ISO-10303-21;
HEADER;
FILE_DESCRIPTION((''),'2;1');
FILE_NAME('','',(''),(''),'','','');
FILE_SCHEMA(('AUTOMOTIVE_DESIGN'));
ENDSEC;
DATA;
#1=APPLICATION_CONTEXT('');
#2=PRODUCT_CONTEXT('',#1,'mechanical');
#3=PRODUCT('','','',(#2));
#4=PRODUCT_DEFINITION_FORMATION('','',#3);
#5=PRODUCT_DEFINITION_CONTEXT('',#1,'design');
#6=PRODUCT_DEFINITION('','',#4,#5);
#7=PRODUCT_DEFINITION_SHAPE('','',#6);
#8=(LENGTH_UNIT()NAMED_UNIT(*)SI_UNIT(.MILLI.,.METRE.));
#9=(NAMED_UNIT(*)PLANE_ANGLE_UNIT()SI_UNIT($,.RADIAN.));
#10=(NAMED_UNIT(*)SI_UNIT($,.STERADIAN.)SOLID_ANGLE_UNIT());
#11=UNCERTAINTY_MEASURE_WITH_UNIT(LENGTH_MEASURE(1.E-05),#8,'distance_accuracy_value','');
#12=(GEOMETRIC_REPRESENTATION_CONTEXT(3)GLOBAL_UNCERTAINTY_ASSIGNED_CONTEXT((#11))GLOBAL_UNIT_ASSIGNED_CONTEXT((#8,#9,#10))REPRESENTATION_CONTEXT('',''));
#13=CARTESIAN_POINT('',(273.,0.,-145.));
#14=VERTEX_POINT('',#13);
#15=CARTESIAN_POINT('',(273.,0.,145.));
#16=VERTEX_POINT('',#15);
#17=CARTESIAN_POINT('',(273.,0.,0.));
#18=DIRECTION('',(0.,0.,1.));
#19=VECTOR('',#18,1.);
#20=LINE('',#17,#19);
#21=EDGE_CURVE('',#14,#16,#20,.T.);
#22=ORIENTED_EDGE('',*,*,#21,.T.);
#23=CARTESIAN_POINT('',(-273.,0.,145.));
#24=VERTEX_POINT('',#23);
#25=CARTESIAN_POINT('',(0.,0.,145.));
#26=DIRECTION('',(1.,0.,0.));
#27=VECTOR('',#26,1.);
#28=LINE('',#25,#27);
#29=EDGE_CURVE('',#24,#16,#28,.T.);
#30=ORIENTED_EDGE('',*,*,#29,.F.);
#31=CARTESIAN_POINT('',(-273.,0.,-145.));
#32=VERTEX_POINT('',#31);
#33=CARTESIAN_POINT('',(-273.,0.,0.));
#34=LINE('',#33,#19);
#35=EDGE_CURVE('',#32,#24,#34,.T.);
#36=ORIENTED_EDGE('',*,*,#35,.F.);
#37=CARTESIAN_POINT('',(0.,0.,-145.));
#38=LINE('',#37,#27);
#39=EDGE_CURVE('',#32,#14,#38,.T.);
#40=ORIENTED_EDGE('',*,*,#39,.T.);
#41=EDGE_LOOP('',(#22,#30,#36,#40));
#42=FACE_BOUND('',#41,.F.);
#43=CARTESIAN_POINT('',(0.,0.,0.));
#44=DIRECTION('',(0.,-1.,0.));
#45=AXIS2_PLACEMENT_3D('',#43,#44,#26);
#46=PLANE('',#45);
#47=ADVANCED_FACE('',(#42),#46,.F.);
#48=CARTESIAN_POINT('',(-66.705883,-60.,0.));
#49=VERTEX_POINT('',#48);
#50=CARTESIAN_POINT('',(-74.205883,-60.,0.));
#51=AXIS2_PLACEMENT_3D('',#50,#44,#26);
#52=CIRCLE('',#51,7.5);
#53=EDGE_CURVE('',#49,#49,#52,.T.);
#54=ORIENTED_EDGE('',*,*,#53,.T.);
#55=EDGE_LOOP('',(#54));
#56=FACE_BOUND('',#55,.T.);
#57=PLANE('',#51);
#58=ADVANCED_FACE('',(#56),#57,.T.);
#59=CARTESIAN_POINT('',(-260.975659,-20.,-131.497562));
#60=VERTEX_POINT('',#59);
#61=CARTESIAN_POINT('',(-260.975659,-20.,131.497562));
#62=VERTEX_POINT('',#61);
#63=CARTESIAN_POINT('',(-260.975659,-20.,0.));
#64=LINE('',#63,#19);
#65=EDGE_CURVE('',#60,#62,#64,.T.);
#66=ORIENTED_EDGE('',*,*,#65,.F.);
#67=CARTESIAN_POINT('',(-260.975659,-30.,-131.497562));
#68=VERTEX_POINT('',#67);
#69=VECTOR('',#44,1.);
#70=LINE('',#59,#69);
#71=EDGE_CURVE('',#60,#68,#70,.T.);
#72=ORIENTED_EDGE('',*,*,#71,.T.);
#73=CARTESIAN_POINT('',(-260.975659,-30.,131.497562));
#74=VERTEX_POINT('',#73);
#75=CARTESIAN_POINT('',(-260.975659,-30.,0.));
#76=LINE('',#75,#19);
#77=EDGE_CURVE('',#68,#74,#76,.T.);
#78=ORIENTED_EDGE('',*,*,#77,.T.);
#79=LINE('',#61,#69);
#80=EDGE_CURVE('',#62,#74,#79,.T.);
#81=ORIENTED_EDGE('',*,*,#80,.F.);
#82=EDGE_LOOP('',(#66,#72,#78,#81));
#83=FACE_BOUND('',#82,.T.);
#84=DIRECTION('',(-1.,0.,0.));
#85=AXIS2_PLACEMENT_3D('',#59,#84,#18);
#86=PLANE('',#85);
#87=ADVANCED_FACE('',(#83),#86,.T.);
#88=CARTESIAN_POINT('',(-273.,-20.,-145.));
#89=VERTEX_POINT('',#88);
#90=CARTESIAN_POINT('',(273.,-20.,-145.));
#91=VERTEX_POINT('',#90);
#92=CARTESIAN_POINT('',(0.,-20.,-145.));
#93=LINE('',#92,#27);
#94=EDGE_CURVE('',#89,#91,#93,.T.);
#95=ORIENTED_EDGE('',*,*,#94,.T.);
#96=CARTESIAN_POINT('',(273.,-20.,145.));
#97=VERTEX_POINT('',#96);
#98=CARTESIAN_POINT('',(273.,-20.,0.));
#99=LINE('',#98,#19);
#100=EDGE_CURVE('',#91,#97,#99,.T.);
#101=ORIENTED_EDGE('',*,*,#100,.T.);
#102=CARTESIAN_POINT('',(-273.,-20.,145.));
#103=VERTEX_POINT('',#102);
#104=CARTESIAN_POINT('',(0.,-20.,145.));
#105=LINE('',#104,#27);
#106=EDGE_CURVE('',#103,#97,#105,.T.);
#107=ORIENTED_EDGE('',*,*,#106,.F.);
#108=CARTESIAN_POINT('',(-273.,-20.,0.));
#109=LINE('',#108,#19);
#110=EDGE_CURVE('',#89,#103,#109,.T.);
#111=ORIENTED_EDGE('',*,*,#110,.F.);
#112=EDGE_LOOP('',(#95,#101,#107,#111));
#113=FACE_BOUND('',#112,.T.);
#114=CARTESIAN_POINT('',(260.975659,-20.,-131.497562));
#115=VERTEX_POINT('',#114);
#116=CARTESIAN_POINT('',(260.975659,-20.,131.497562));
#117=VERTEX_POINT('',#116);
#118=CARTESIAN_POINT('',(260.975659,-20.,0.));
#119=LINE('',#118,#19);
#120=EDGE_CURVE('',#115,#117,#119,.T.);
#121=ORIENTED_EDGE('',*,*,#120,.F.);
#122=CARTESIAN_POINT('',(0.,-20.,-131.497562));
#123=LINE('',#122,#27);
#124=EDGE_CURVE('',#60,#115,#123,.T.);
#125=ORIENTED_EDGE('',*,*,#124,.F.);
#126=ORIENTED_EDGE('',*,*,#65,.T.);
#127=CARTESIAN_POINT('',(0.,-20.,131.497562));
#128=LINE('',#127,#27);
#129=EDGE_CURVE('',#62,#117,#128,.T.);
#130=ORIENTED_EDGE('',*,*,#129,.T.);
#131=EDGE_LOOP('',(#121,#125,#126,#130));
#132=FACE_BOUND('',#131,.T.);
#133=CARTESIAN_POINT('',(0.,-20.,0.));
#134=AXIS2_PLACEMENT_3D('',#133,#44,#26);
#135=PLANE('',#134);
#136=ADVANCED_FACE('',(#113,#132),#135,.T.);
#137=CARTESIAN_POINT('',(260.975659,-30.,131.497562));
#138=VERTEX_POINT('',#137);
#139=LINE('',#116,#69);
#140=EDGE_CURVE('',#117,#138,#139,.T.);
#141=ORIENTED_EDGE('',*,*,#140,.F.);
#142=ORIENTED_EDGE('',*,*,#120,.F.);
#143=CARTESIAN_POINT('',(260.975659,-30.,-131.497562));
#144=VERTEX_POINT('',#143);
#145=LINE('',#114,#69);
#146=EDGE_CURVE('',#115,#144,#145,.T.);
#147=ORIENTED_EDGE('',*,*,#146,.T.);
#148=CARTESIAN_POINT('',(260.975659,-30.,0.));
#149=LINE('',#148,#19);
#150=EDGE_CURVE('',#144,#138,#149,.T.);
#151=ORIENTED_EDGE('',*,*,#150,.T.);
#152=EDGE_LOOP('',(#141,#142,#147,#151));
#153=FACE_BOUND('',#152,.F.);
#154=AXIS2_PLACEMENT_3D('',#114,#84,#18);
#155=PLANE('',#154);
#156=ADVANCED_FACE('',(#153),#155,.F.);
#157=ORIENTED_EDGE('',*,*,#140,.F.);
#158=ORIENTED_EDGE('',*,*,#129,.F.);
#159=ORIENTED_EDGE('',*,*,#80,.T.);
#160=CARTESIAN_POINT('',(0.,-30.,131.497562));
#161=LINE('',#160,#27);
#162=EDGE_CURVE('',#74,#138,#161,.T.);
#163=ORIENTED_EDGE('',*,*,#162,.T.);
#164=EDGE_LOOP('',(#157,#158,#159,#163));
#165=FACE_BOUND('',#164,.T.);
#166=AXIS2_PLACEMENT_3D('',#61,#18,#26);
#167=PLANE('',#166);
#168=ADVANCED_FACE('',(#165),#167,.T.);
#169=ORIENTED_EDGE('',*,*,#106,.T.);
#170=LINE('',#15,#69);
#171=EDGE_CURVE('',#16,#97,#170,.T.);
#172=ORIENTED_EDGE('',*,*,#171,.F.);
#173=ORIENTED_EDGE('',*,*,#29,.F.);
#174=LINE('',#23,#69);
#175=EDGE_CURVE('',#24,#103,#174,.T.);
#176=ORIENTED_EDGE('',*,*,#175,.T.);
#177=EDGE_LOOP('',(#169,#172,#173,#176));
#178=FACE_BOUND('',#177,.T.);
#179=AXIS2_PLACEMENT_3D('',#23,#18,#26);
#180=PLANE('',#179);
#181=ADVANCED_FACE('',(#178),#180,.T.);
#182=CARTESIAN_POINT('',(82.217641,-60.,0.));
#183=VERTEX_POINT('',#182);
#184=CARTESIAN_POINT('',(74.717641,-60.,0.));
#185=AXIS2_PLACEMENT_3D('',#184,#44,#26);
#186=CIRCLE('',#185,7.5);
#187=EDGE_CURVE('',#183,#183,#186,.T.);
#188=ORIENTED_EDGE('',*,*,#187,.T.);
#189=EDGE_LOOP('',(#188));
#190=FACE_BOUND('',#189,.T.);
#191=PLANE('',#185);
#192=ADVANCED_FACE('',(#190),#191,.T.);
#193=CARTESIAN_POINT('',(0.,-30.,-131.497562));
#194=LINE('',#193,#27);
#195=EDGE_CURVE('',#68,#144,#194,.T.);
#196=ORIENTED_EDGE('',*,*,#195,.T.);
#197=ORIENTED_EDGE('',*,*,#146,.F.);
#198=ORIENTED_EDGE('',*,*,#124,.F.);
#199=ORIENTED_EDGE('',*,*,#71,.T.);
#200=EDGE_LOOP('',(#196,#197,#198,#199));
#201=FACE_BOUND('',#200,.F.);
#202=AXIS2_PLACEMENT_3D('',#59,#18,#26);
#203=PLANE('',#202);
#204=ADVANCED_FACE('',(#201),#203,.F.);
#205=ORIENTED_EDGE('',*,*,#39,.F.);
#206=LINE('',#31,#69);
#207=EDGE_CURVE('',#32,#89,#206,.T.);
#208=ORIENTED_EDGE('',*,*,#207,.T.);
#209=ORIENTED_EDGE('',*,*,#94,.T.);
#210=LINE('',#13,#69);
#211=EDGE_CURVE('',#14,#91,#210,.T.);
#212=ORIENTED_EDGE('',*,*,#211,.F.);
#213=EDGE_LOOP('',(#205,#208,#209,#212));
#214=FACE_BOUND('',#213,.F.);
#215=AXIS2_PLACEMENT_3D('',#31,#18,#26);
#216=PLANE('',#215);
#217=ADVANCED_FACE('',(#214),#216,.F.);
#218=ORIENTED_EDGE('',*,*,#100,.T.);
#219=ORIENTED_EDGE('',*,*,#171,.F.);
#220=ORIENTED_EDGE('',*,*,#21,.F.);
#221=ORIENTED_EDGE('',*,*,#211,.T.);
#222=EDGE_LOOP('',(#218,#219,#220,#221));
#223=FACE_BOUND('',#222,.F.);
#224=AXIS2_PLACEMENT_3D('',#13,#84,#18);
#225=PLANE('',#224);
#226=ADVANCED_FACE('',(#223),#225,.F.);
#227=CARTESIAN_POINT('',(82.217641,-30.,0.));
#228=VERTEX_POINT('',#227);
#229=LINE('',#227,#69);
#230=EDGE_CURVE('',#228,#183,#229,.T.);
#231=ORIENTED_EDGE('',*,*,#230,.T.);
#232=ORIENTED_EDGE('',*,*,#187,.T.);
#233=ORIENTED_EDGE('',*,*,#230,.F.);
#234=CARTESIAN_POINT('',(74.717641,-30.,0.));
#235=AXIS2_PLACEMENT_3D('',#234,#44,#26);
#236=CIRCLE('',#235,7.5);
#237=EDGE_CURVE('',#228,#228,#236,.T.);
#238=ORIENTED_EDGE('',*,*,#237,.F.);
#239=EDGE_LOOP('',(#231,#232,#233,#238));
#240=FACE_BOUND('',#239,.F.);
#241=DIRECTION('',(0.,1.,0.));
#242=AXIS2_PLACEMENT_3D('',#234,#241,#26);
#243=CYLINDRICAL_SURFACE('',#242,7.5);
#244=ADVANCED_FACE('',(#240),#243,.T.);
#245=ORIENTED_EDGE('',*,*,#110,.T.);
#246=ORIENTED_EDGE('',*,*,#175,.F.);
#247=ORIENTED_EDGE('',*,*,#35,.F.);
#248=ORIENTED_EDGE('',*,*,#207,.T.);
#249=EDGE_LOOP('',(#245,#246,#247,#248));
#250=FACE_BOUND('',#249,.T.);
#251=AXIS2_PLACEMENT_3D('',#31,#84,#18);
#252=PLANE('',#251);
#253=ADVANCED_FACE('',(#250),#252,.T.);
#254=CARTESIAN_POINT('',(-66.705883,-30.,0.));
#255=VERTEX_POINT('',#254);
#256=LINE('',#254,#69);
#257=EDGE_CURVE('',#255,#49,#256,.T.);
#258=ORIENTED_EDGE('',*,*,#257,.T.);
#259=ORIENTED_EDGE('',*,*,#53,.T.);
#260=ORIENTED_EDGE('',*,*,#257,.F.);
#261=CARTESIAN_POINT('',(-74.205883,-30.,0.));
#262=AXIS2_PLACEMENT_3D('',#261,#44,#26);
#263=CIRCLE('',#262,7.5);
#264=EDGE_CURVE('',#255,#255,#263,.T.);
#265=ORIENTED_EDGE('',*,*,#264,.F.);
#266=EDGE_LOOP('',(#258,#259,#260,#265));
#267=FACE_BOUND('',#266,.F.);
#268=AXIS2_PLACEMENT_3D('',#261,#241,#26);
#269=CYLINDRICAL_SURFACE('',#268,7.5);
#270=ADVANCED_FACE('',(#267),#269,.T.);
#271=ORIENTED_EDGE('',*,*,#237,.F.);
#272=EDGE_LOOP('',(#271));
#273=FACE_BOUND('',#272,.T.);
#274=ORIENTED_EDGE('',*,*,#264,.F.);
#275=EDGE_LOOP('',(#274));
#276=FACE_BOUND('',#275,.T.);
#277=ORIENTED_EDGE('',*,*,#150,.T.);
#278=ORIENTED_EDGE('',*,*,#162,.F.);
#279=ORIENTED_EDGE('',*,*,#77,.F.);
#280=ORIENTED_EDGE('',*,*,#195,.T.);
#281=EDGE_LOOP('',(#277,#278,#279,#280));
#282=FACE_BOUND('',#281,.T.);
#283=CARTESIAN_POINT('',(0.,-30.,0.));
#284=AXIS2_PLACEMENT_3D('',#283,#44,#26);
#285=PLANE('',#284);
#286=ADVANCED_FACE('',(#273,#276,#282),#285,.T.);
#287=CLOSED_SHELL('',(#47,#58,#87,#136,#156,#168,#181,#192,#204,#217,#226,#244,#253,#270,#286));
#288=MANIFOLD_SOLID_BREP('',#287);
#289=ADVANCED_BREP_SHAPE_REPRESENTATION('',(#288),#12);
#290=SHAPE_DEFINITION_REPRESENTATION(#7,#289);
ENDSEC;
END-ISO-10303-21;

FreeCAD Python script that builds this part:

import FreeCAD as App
import Part
import Sketcher

doc = App.newDocument("Part")
body = doc.addObject("PartDesign::Body", "Body")

sketch1 = doc.addObject("Sketcher::SketchObject", "Sketch")
body.addObject(sketch1)
sketch1.AttachmentSupport = (doc.XZ_Plane, [""])
sketch1.MapMode = "FlatFace"
sketch1.addGeometry([
    Part.LineSegment(App.Vector(-273, 145, 0), App.Vector(-273, -145, 0)),
    Part.LineSegment(App.Vector(-273, -145, 0), App.Vector(273, -145, 0)),
    Part.LineSegment(App.Vector(273, -145, 0), App.Vector(273, 145, 0)),
    Part.LineSegment(App.Vector(273, 145, 0), App.Vector(-273, 145, 0)),
], False)
sketch1.addConstraint([
    Sketcher.Constraint("Coincident", 0, 2, 1, 1),
    Sketcher.Constraint("Coincident", 1, 2, 2, 1),
    Sketcher.Constraint("Coincident", 2, 2, 3, 1),
    Sketcher.Constraint("Coincident", 3, 2, 0, 1),
    Sketcher.Constraint("Vertical", 0),
    Sketcher.Constraint("Horizontal", 1),
    Sketcher.Constraint("Vertical", 2),
    Sketcher.Constraint("Horizontal", 3),
    Sketcher.Constraint("Symmetric", 0, 2, 2, 2, -1, 1),
    Sketcher.Constraint("DistanceX", 1, 1, 1, 2, 546.0),
    Sketcher.Constraint("DistanceY", 0, 2, 0, 1, 290.0),
])
pad1 = doc.addObject("PartDesign::Pad", "Pad")
body.addObject(pad1)
pad1.Profile = sketch1
pad1.Length = 20

sketch2 = doc.addObject("Sketcher::SketchObject", "Sketch001")
body.addObject(sketch2)
sketch2.AttachmentSupport = (doc.XZ_Plane, [""])
sketch2.MapMode = "FlatFace"
sketch2.AttachmentOffset = App.Placement(App.Vector(0, 0, 20), App.Rotation())
sketch2.addGeometry([
    Part.LineSegment(App.Vector(-261, 131, 0), App.Vector(-261, -131, 0)),
    Part.LineSegment(App.Vector(-261, -131, 0), App.Vector(261, -131, 0)),
    Part.LineSegment(App.Vector(261, -131, 0), App.Vector(261, 131, 0)),
    Part.LineSegment(App.Vector(261, 131, 0), App.Vector(-261, 131, 0)),
], False)
sketch2.addConstraint([
    Sketcher.Constraint("Coincident", 0, 2, 1, 1),
    Sketcher.Constraint("Coincident", 1, 2, 2, 1),
    Sketcher.Constraint("Coincident", 2, 2, 3, 1),
    Sketcher.Constraint("Coincident", 3, 2, 0, 1),
    Sketcher.Constraint("Vertical", 0),
    Sketcher.Constraint("Horizontal", 1),
    Sketcher.Constraint("Vertical", 2),
    Sketcher.Constraint("Horizontal", 3),
    Sketcher.Constraint("Symmetric", 0, 2, 2, 2, -1, 1),
    Sketcher.Constraint("DistanceX", 1, 1, 1, 2, 521.951318),
    Sketcher.Constraint("DistanceY", 0, 2, 0, 1, 262.995124),
])
pad2 = doc.addObject("PartDesign::Pad", "Pad001")
body.addObject(pad2)
pad2.Profile = sketch2
pad2.Length = 10

sketch3 = doc.addObject("Sketcher::SketchObject", "Sketch002")
body.addObject(sketch3)
sketch3.AttachmentSupport = (doc.XZ_Plane, [""])
sketch3.MapMode = "FlatFace"
sketch3.AttachmentOffset = App.Placement(App.Vector(0, 0, 30), App.Rotation())
sketch3.addGeometry([
    Part.Circle(App.Vector(-74, 0, 0), App.Vector(0, 0, 1), 8),
    Part.Circle(App.Vector(75, 0, 0), App.Vector(0, 0, 1), 8),
], False)
sketch3.addConstraint([
    Sketcher.Constraint("Equal", 0, 1),
    Sketcher.Constraint("PointOnObject", 0, 3, -1),
    Sketcher.Constraint("PointOnObject", 1, 3, -1),
    Sketcher.Constraint("Diameter", 0, 15.0),
    Sketcher.Constraint("DistanceX", -1, 1, 1, 3, 74.717641),
    Sketcher.Constraint("DistanceX", 0, 3, -1, 1, 74.205883),
])
pad3 = doc.addObject("PartDesign::Pad", "Pad002")
body.addObject(pad3)
pad3.Profile = sketch3
pad3.Length = 30

doc.recompute()
